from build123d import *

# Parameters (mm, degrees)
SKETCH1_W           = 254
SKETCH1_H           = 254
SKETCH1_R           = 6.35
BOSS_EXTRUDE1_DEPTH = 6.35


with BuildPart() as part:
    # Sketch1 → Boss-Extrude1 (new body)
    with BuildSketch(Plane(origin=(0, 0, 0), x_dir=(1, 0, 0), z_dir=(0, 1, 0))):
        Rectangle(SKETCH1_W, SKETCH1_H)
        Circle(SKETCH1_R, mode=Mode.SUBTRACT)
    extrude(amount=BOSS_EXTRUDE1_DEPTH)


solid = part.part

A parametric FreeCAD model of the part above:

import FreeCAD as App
import Part
import Sketcher
Q = App.Units.Quantity

doc = App.newDocument("Part")
body = doc.addObject("PartDesign::Body", "Body")

# Sketch on XZ plane
sketch1 = body.newObject("Sketcher::SketchObject", "Sketch")
sketch1.AttachmentSupport = (doc.getObject("XZ_Plane"), [""])
sketch1.MapMode = "FlatFace"
sketch1.addGeometry([
    Part.LineSegment(App.Vector(-127, -127, 0), App.Vector(-127, 127, 0)),  # 0
    Part.LineSegment(App.Vector(-127, 127, 0), App.Vector(127, 127, 0)),  # 1
    Part.LineSegment(App.Vector(127, 127, 0), App.Vector(127, -127, 0)),  # 2
    Part.LineSegment(App.Vector(127, -127, 0), App.Vector(-127, -127, 0)),  # 3
    Part.Circle(App.Vector(0, 0, 0), App.Vector(0, 0, 1), 6),  # 4
], False)
sketch1.addConstraint([
    Sketcher.Constraint("Coincident", 0, 2, 1, 1),
    Sketcher.Constraint("Coincident", 1, 2, 2, 1),
    Sketcher.Constraint("Coincident", 2, 2, 3, 1),
    Sketcher.Constraint("Coincident", 3, 2, 0, 1),
    Sketcher.Constraint("Vertical", 0),
    Sketcher.Constraint("Horizontal", 1),
    Sketcher.Constraint("Vertical", 2),
    Sketcher.Constraint("Horizontal", 3),
    Sketcher.Constraint("Coincident", 4, 3, -1, 1),
    Sketcher.Constraint("Symmetric", 0, 2, 2, 2, -1, 1),
    Sketcher.Constraint("Equal", 3, 0),
    Sketcher.Constraint("Diameter", 4, Q("0.5 in")),
    Sketcher.Constraint("DistanceX", 1, 1, 1, 2, Q("10 in")),
])
pad1 = body.newObject("PartDesign::Pad", "Pad")
pad1.Profile = sketch1
pad1.Length = Q("0.25 in")
pad1.Reversed = True

doc.recompute()
